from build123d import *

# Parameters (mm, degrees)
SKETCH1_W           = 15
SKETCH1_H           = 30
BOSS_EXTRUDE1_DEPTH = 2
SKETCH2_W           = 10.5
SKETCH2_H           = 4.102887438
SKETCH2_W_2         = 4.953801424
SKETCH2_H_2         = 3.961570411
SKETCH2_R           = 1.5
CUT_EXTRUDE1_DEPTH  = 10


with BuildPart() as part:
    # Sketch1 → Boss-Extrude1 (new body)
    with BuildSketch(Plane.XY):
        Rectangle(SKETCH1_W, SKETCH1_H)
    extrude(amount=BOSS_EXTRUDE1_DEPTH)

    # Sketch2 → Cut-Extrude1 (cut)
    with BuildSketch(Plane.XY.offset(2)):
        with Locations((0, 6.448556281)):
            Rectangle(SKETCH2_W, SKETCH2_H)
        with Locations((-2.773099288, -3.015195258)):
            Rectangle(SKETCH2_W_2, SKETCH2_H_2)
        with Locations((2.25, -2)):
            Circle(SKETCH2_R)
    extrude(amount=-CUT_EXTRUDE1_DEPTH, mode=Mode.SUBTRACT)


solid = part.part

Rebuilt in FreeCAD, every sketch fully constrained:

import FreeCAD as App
import Part
import Sketcher
Q = App.Units.Quantity

doc = App.newDocument("Part")
body = doc.addObject("PartDesign::Body", "Body")

sketch1 = body.newObject("Sketcher::SketchObject", "Sketch")
sketch1.AttachmentSupport = (doc.getObject("XY_Plane"), [""])
sketch1.MapMode = "FlatFace"
sketch1.addGeometry([
    Part.LineSegment(App.Vector(-8, 15, 0), App.Vector(-8, -15, 0)),
    Part.LineSegment(App.Vector(-8, -15, 0), App.Vector(8, -15, 0)),
    Part.LineSegment(App.Vector(8, -15, 0), App.Vector(8, 15, 0)),
    Part.LineSegment(App.Vector(8, 15, 0), App.Vector(-8, 15, 0)),
], False)
sketch1.addConstraint([
    Sketcher.Constraint("Coincident", 0, 2, 1, 1),
    Sketcher.Constraint("Coincident", 1, 2, 2, 1),
    Sketcher.Constraint("Coincident", 2, 2, 3, 1),
    Sketcher.Constraint("Coincident", 3, 2, 0, 1),
    Sketcher.Constraint("Vertical", 0),
    Sketcher.Constraint("Horizontal", 1),
    Sketcher.Constraint("Vertical", 2),
    Sketcher.Constraint("Horizontal", 3),
    Sketcher.Constraint("Symmetric", 0, 2, 2, 2, -1, 1),
    Sketcher.Constraint("DistanceX", 1, 1, 1, 2, Q("15 mm")),
    Sketcher.Constraint("DistanceY", 0, 2, 0, 1, Q("30 mm")),
])
pad1 = body.newObject("PartDesign::Pad", "Pad")
pad1.Profile = sketch1
pad1.Length = 2

sketch2 = body.newObject("Sketcher::SketchObject", "Sketch001")
sketch2.AttachmentSupport = (doc.getObject("XY_Plane"), [""])
sketch2.MapMode = "FlatFace"
sketch2.AttachmentOffset = App.Placement(App.Vector(0, 0, 2), App.Rotation())
sketch2.addGeometry([
    Part.LineSegment(App.Vector(-5.2, 8.5, 0), App.Vector(-5.2, 4.4, 0)),
    Part.LineSegment(App.Vector(-5.2, 4.4, 0), App.Vector(5.2, 4.4, 0)),
    Part.LineSegment(App.Vector(5.2, 4.4, 0), App.Vector(5.2, 8.5, 0)),
    Part.LineSegment(App.Vector(5.2, 8.5, 0), App.Vector(-5.2, 8.5, 0)),
    Part.LineSegment(App.Vector(-5.2, -1, 0), App.Vector(-5.2, -5, 0)),
    Part.LineSegment(App.Vector(-5.2, -5, 0), App.Vector(-0.3, -5, 0)),
    Part.LineSegment(App.Vector(-0.3, -5, 0), App.Vector(-0.3, -1, 0)),
    Part.LineSegment(App.Vector(-0.3, -1, 0), App.Vector(-5.2, -1, 0)),
    Part.Circle(App.Vector(2.2, -2, 0), App.Vector(0, 0, 1), 1.5),
], False)
sketch2.addConstraint([
    Sketcher.Constraint("Coincident", 0, 2, 1, 1),
    Sketcher.Constraint("Coincident", 1, 2, 2, 1),
    Sketcher.Constraint("Coincident", 2, 2, 3, 1),
    Sketcher.Constraint("Coincident", 3, 2, 0, 1),
    Sketcher.Constraint("Coincident", 4, 2, 5, 1),
    Sketcher.Constraint("Coincident", 5, 2, 6, 1),
    Sketcher.Constraint("Coincident", 6, 2, 7, 1),
    Sketcher.Constraint("Coincident", 7, 2, 4, 1),
    Sketcher.Constraint("Vertical", 0),
    Sketcher.Constraint("Horizontal", 1),
    Sketcher.Constraint("Vertical", 2),
    Sketcher.Constraint("Horizontal", 3),
    Sketcher.Constraint("Vertical", 4),
    Sketcher.Constraint("Horizontal", 5),
    Sketcher.Constraint("Vertical", 6),
    Sketcher.Constraint("Horizontal", 7),
    Sketcher.Constraint("Vertical", 3, 2, 4, 2),
    Sketcher.Constraint("Diameter", 8, Q("3 mm")),
    Sketcher.Constraint("DistanceX", 1, 1, 1, 2, Q("10.5 mm")),
    Sketcher.Constraint("DistanceY", 8, 3, -1, 1, Q("2 mm")),
    Sketcher.Constraint("DistanceX", 8, 3, 1, 2, Q("3 mm")),
    Sketcher.Constraint("DistanceY", -1, 1, 2, 2, Q("8.5 mm")),
    Sketcher.Constraint("DistanceX", -1, 1, 8, 3, Q("2.25 mm")),
    Sketcher.Constraint("DistanceX", 5, 1, 5, 2, Q("4.953801 mm")),
    Sketcher.Constraint("DistanceY", 4, 2, 4, 1, Q("3.96157 mm")),
    Sketcher.Constraint("DistanceY", 0, 2, 0, 1, Q("4.102887 mm")),
    Sketcher.Constraint("DistanceY", 4, 2, -1, 1, Q("4.99598 mm")),
])
pocket1 = body.newObject("PartDesign::Pocket", "Pocket")
pocket1.Profile = sketch2
pocket1.Length = 10

doc.recompute()
